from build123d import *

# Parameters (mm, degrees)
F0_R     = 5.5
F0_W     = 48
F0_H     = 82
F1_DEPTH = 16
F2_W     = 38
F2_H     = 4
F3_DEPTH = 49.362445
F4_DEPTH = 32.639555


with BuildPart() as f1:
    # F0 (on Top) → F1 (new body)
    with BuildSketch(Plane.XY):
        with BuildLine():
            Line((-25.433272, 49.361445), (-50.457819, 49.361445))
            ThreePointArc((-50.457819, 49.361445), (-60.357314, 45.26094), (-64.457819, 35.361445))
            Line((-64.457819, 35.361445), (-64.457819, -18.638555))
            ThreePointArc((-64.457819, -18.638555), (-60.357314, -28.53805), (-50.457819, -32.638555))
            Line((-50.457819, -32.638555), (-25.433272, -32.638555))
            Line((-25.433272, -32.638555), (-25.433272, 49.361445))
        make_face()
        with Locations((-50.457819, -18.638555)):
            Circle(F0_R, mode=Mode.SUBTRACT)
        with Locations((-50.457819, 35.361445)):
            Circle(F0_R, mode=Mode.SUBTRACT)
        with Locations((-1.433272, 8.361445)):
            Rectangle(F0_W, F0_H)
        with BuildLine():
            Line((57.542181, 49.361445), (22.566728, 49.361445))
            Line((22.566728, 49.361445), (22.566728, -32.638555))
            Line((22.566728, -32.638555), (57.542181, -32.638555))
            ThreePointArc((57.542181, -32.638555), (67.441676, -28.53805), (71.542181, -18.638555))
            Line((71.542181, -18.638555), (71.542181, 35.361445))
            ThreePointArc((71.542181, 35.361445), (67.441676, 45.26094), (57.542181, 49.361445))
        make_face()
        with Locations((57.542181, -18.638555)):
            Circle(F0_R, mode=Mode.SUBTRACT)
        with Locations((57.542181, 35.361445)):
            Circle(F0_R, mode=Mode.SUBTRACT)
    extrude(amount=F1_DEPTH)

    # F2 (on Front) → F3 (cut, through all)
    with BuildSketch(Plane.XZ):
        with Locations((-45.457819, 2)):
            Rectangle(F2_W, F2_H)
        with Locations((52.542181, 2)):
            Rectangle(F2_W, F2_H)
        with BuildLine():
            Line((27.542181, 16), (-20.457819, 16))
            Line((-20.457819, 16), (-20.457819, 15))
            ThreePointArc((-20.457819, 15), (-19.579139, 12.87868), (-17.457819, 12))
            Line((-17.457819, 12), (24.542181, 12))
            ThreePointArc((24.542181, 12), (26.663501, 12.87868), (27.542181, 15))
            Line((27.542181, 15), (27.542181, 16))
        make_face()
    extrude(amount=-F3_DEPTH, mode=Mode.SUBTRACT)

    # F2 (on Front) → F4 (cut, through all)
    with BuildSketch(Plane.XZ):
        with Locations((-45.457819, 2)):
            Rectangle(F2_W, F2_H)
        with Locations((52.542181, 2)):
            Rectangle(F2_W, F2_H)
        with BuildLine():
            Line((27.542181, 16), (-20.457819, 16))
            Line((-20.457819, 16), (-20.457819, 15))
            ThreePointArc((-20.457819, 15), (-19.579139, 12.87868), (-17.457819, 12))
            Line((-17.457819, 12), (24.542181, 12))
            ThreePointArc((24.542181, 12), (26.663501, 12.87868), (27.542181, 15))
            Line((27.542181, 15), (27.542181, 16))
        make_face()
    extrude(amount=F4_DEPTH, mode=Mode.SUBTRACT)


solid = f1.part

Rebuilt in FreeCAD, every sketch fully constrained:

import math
import FreeCAD as App
import Part
import Sketcher
from FreeCAD import Vector
Q = App.Units.Quantity


def add_polygon(sketch, points):
    """Adds a closed chain of lines whose ends are joined by coincident constraints."""
    first, n = sketch.GeometryCount, len(points)
    for a, b in zip(points, points[1:] + points[:1]):
        sketch.addGeometry(Part.LineSegment(App.Vector(*a, 0), App.Vector(*b, 0)), False)
    for i in range(n):
        sketch.addConstraint(Sketcher.Constraint("Coincident", first + i, 2, first + (i + 1) % n, 1))

doc = App.newDocument("Part")
body = doc.addObject("PartDesign::Body", "Body")

sketch1 = body.newObject("Sketcher::SketchObject", "Sketch")
sketch1.AttachmentSupport = (doc.getObject("XY_Plane"), [""])
sketch1.MapMode = "FlatFace"
sketch1.addGeometry(Part.ArcOfCircle(Part.Circle(Vector(-50, 35, 0), Vector(0, 0, 1), 14), math.radians(90), math.radians(180)), False)
sketch1.addGeometry(Part.LineSegment(Vector(-64, 35, 0), Vector(-64, -19, 0)), False)
sketch1.addGeometry(Part.ArcOfCircle(Part.Circle(Vector(-50, -19, 0), Vector(0, 0, 1), 14), math.radians(180), math.radians(270)), False)
sketch1.addGeometry(Part.LineSegment(Vector(-50, -33, 0), Vector(58, -33, 0)), False)
sketch1.addGeometry(Part.ArcOfCircle(Part.Circle(Vector(58, -19, 0), Vector(0, 0, 1), 14), math.radians(-90), math.radians(0)), False)
sketch1.addGeometry(Part.LineSegment(Vector(72, -19, 0), Vector(72, 35, 0)), False)
sketch1.addGeometry(Part.ArcOfCircle(Part.Circle(Vector(58, 35, 0), Vector(0, 0, 1), 14), math.radians(0), math.radians(90)), False)
sketch1.addGeometry(Part.LineSegment(Vector(58, 49, 0), Vector(-50, 49, 0)), False)
sketch1.addGeometry(Part.Circle(Vector(-50, -19, 0), Vector(0, 0, 1), 6), False)
sketch1.addGeometry(Part.Circle(Vector(58, -19, 0), Vector(0, 0, 1), 6), False)
sketch1.addGeometry(Part.Circle(Vector(-50, 35, 0), Vector(0, 0, 1), 6), False)
sketch1.addGeometry(Part.Circle(Vector(58, 35, 0), Vector(0, 0, 1), 6), False)
sketch1.addConstraint(Sketcher.Constraint("Tangent", 0, 2, 1, 1))
sketch1.addConstraint(Sketcher.Constraint("Tangent", 1, 2, 2, 1))
sketch1.addConstraint(Sketcher.Constraint("Tangent", 2, 2, 3, 1))
sketch1.addConstraint(Sketcher.Constraint("Tangent", 3, 2, 4, 1))
sketch1.addConstraint(Sketcher.Constraint("Tangent", 4, 2, 5, 1))
sketch1.addConstraint(Sketcher.Constraint("Tangent", 5, 2, 6, 1))
sketch1.addConstraint(Sketcher.Constraint("Tangent", 6, 2, 7, 1))
sketch1.addConstraint(Sketcher.Constraint("Tangent", 7, 2, 0, 1))
sketch1.addConstraint(Sketcher.Constraint("Vertical", 1))
sketch1.addConstraint(Sketcher.Constraint("Horizontal", 3))
sketch1.addConstraint(Sketcher.Constraint("Vertical", 5))
sketch1.addConstraint(Sketcher.Constraint("Horizontal", 7))
sketch1.addConstraint(Sketcher.Constraint("Coincident", 8, 3, 2, 3))
sketch1.addConstraint(Sketcher.Constraint("Coincident", 9, 3, 4, 3))
sketch1.addConstraint(Sketcher.Constraint("Coincident", 10, 3, 0, 3))
sketch1.addConstraint(Sketcher.Constraint("Coincident", 11, 3, 6, 3))
sketch1.addConstraint(Sketcher.Constraint("Equal", 0, 2))
sketch1.addConstraint(Sketcher.Constraint("Equal", 2, 4))
sketch1.addConstraint(Sketcher.Constraint("Equal", 4, 6))
sketch1.addConstraint(Sketcher.Constraint("Equal", 8, 9))
sketch1.addConstraint(Sketcher.Constraint("Equal", 9, 10))
sketch1.addConstraint(Sketcher.Constraint("Equal", 10, 11))
sketch1.addConstraint(Sketcher.Constraint("Diameter", 8, Q("11 mm")))
sketch1.addConstraint(Sketcher.Constraint("Radius", 0, Q("14 mm")))
sketch1.addConstraint(Sketcher.Constraint("DistanceX", 3, 1, 3, 2, Q("108 mm")))
sketch1.addConstraint(Sketcher.Constraint("DistanceY", 1, 2, 1, 1, Q("54 mm")))
sketch1.addConstraint(Sketcher.Constraint("DistanceX", 0, 3, -1, 1, Q("50.457819 mm")))
sketch1.addConstraint(Sketcher.Constraint("DistanceY", -1, 1, 0, 3, Q("35.361445 mm")))
pad1 = body.newObject("PartDesign::Pad", "Pad")
pad1.Profile = sketch1
pad1.Length = 16

sketch2 = body.newObject("Sketcher::SketchObject", "Sketch001")
sketch2.AttachmentSupport = (doc.getObject("XZ_Plane"), [""])
sketch2.MapMode = "FlatFace"
add_polygon(sketch2, [(-64.5, 4), (-64.5, 0), (-26.5, 0), (-26.5, 4)])
add_polygon(sketch2, [(33.5, 4), (33.5, 0), (71.5, 0), (71.5, 4)])
sketch2.addGeometry(Part.LineSegment(Vector(27.5, 16, 0), Vector(-20.5, 16, 0)), False)
sketch2.addGeometry(Part.LineSegment(Vector(-20.5, 16, 0), Vector(-20.5, 15, 0)), False)
sketch2.addGeometry(Part.ArcOfCircle(Part.Circle(Vector(-17.5, 15, 0), Vector(0, 0, 1), 3), math.radians(-180), math.radians(-90)), False)
sketch2.addGeometry(Part.LineSegment(Vector(-17.5, 12, 0), Vector(24.5, 12, 0)), False)
sketch2.addGeometry(Part.ArcOfCircle(Part.Circle(Vector(24.5, 15, 0), Vector(0, 0, 1), 3), math.radians(-90), math.radians(0)), False)
sketch2.addGeometry(Part.LineSegment(Vector(27.5, 15, 0), Vector(27.5, 16, 0)), False)
sketch2.addConstraint(Sketcher.Constraint("Coincident", 8, 2, 9, 1))
sketch2.addConstraint(Sketcher.Constraint("Tangent", 9, 2, 10, 1))
sketch2.addConstraint(Sketcher.Constraint("Tangent", 10, 2, 11, 1))
sketch2.addConstraint(Sketcher.Constraint("Tangent", 11, 2, 12, 1))
sketch2.addConstraint(Sketcher.Constraint("Tangent", 12, 2, 13, 1))
sketch2.addConstraint(Sketcher.Constraint("Coincident", 13, 2, 8, 1))
sketch2.addConstraint(Sketcher.Constraint("Vertical", 0))
sketch2.addConstraint(Sketcher.Constraint("Horizontal", 1))
sketch2.addConstraint(Sketcher.Constraint("Vertical", 2))
sketch2.addConstraint(Sketcher.Constraint("Horizontal", 3))
sketch2.addConstraint(Sketcher.Constraint("Vertical", 4))
sketch2.addConstraint(Sketcher.Constraint("Horizontal", 5))
sketch2.addConstraint(Sketcher.Constraint("Vertical", 6))
sketch2.addConstraint(Sketcher.Constraint("Horizontal", 7))
sketch2.addConstraint(Sketcher.Constraint("Horizontal", 8))
sketch2.addConstraint(Sketcher.Constraint("Vertical", 9))
sketch2.addConstraint(Sketcher.Constraint("Horizontal", 11))
sketch2.addConstraint(Sketcher.Constraint("Vertical", 13))
sketch2.addConstraint(Sketcher.Constraint("Equal", 10, 12))
sketch2.addConstraint(Sketcher.Constraint("PointOnObject", 0, 2, -1))
sketch2.addConstraint(Sketcher.Constraint("PointOnObject", 4, 2, -1))
sketch2.addConstraint(Sketcher.Constraint("Horizontal", 3, 2, 6, 2))
sketch2.addConstraint(Sketcher.Constraint("Equal", 3, 5))
sketch2.addConstraint(Sketcher.Constraint("Radius", 10, Q("3.000001 mm")))
sketch2.addConstraint(Sketcher.Constraint("DistanceX", 1, 1, 1, 2, Q("38 mm")))
sketch2.addConstraint(Sketcher.Constraint("DistanceX", 8, 2, 8, 1, Q("48 mm")))
sketch2.addConstraint(Sketcher.Constraint("DistanceY", 0, 2, 0, 1, Q("4 mm")))
sketch2.addConstraint(Sketcher.Constraint("DistanceY", 9, 2, 9, 1, Q("1 mm")))
sketch2.addConstraint(Sketcher.Constraint("DistanceY", -1, 1, 10, 3, Q("15.000001 mm")))
sketch2.addConstraint(Sketcher.Constraint("DistanceX", 0, 2, 10, 3, Q("47.000001 mm")))
sketch2.addConstraint(Sketcher.Constraint("DistanceX", 12, 3, 4, 2, Q("9.000001 mm")))
sketch2.addConstraint(Sketcher.Constraint("DistanceX", -1, 1, 12, 3, Q("24.54218 mm")))
pocket1 = body.newObject("PartDesign::Pocket", "Pocket")
pocket1.Profile = sketch2
pocket1.Type = "ThroughAll"

sketch3 = body.newObject("Sketcher::SketchObject", "Sketch002")
sketch3.AttachmentSupport = (doc.getObject("XZ_Plane"), [""])
sketch3.MapMode = "FlatFace"
add_polygon(sketch3, [(-64.5, 4), (-64.5, 0), (-26.5, 0), (-26.5, 4)])
add_polygon(sketch3, [(33.5, 4), (33.5, 0), (71.5, 0), (71.5, 4)])
sketch3.addGeometry(Part.LineSegment(Vector(27.5, 16, 0), Vector(-20.5, 16, 0)), False)
sketch3.addGeometry(Part.LineSegment(Vector(-20.5, 16, 0), Vector(-20.5, 15, 0)), False)
sketch3.addGeometry(Part.ArcOfCircle(Part.Circle(Vector(-17.5, 15, 0), Vector(0, 0, 1), 3), math.radians(-180), math.radians(-90)), False)
sketch3.addGeometry(Part.LineSegment(Vector(-17.5, 12, 0), Vector(24.5, 12, 0)), False)
sketch3.addGeometry(Part.ArcOfCircle(Part.Circle(Vector(24.5, 15, 0), Vector(0, 0, 1), 3), math.radians(-90), math.radians(0)), False)
sketch3.addGeometry(Part.LineSegment(Vector(27.5, 15, 0), Vector(27.5, 16, 0)), False)
sketch3.addConstraint(Sketcher.Constraint("Coincident", 8, 2, 9, 1))
sketch3.addConstraint(Sketcher.Constraint("Tangent", 9, 2, 10, 1))
sketch3.addConstraint(Sketcher.Constraint("Tangent", 10, 2, 11, 1))
sketch3.addConstraint(Sketcher.Constraint("Tangent", 11, 2, 12, 1))
sketch3.addConstraint(Sketcher.Constraint("Tangent", 12, 2, 13, 1))
sketch3.addConstraint(Sketcher.Constraint("Coincident", 13, 2, 8, 1))
sketch3.addConstraint(Sketcher.Constraint("Vertical", 0))
sketch3.addConstraint(Sketcher.Constraint("Horizontal", 1))
sketch3.addConstraint(Sketcher.Constraint("Vertical", 2))
sketch3.addConstraint(Sketcher.Constraint("Horizontal", 3))
sketch3.addConstraint(Sketcher.Constraint("Vertical", 4))
sketch3.addConstraint(Sketcher.Constraint("Horizontal", 5))
sketch3.addConstraint(Sketcher.Constraint("Vertical", 6))
sketch3.addConstraint(Sketcher.Constraint("Horizontal", 7))
sketch3.addConstraint(Sketcher.Constraint("Horizontal", 8))
sketch3.addConstraint(Sketcher.Constraint("Vertical", 9))
sketch3.addConstraint(Sketcher.Constraint("Horizontal", 11))
sketch3.addConstraint(Sketcher.Constraint("Vertical", 13))
sketch3.addConstraint(Sketcher.Constraint("Equal", 10, 12))
sketch3.addConstraint(Sketcher.Constraint("PointOnObject", 0, 2, -1))
sketch3.addConstraint(Sketcher.Constraint("PointOnObject", 4, 2, -1))
sketch3.addConstraint(Sketcher.Constraint("Horizontal", 3, 2, 6, 2))
sketch3.addConstraint(Sketcher.Constraint("Equal", 3, 5))
sketch3.addConstraint(Sketcher.Constraint("Radius", 10, Q("3.000001 mm")))
sketch3.addConstraint(Sketcher.Constraint("DistanceX", 1, 1, 1, 2, Q("38 mm")))
sketch3.addConstraint(Sketcher.Constraint("DistanceX", 8, 2, 8, 1, Q("48 mm")))
sketch3.addConstraint(Sketcher.Constraint("DistanceY", 0, 2, 0, 1, Q("4 mm")))
sketch3.addConstraint(Sketcher.Constraint("DistanceY", 9, 2, 9, 1, Q("1 mm")))
sketch3.addConstraint(Sketcher.Constraint("DistanceY", -1, 1, 10, 3, Q("15.000001 mm")))
sketch3.addConstraint(Sketcher.Constraint("DistanceX", 0, 2, 10, 3, Q("47.000001 mm")))
sketch3.addConstraint(Sketcher.Constraint("DistanceX", 12, 3, 4, 2, Q("9.000001 mm")))
sketch3.addConstraint(Sketcher.Constraint("DistanceX", -1, 1, 12, 3, Q("24.54218 mm")))
pocket2 = body.newObject("PartDesign::Pocket", "Pocket001")
pocket2.Profile = sketch3
pocket2.Type = "ThroughAll"
pocket2.Reversed = True

doc.recompute()
